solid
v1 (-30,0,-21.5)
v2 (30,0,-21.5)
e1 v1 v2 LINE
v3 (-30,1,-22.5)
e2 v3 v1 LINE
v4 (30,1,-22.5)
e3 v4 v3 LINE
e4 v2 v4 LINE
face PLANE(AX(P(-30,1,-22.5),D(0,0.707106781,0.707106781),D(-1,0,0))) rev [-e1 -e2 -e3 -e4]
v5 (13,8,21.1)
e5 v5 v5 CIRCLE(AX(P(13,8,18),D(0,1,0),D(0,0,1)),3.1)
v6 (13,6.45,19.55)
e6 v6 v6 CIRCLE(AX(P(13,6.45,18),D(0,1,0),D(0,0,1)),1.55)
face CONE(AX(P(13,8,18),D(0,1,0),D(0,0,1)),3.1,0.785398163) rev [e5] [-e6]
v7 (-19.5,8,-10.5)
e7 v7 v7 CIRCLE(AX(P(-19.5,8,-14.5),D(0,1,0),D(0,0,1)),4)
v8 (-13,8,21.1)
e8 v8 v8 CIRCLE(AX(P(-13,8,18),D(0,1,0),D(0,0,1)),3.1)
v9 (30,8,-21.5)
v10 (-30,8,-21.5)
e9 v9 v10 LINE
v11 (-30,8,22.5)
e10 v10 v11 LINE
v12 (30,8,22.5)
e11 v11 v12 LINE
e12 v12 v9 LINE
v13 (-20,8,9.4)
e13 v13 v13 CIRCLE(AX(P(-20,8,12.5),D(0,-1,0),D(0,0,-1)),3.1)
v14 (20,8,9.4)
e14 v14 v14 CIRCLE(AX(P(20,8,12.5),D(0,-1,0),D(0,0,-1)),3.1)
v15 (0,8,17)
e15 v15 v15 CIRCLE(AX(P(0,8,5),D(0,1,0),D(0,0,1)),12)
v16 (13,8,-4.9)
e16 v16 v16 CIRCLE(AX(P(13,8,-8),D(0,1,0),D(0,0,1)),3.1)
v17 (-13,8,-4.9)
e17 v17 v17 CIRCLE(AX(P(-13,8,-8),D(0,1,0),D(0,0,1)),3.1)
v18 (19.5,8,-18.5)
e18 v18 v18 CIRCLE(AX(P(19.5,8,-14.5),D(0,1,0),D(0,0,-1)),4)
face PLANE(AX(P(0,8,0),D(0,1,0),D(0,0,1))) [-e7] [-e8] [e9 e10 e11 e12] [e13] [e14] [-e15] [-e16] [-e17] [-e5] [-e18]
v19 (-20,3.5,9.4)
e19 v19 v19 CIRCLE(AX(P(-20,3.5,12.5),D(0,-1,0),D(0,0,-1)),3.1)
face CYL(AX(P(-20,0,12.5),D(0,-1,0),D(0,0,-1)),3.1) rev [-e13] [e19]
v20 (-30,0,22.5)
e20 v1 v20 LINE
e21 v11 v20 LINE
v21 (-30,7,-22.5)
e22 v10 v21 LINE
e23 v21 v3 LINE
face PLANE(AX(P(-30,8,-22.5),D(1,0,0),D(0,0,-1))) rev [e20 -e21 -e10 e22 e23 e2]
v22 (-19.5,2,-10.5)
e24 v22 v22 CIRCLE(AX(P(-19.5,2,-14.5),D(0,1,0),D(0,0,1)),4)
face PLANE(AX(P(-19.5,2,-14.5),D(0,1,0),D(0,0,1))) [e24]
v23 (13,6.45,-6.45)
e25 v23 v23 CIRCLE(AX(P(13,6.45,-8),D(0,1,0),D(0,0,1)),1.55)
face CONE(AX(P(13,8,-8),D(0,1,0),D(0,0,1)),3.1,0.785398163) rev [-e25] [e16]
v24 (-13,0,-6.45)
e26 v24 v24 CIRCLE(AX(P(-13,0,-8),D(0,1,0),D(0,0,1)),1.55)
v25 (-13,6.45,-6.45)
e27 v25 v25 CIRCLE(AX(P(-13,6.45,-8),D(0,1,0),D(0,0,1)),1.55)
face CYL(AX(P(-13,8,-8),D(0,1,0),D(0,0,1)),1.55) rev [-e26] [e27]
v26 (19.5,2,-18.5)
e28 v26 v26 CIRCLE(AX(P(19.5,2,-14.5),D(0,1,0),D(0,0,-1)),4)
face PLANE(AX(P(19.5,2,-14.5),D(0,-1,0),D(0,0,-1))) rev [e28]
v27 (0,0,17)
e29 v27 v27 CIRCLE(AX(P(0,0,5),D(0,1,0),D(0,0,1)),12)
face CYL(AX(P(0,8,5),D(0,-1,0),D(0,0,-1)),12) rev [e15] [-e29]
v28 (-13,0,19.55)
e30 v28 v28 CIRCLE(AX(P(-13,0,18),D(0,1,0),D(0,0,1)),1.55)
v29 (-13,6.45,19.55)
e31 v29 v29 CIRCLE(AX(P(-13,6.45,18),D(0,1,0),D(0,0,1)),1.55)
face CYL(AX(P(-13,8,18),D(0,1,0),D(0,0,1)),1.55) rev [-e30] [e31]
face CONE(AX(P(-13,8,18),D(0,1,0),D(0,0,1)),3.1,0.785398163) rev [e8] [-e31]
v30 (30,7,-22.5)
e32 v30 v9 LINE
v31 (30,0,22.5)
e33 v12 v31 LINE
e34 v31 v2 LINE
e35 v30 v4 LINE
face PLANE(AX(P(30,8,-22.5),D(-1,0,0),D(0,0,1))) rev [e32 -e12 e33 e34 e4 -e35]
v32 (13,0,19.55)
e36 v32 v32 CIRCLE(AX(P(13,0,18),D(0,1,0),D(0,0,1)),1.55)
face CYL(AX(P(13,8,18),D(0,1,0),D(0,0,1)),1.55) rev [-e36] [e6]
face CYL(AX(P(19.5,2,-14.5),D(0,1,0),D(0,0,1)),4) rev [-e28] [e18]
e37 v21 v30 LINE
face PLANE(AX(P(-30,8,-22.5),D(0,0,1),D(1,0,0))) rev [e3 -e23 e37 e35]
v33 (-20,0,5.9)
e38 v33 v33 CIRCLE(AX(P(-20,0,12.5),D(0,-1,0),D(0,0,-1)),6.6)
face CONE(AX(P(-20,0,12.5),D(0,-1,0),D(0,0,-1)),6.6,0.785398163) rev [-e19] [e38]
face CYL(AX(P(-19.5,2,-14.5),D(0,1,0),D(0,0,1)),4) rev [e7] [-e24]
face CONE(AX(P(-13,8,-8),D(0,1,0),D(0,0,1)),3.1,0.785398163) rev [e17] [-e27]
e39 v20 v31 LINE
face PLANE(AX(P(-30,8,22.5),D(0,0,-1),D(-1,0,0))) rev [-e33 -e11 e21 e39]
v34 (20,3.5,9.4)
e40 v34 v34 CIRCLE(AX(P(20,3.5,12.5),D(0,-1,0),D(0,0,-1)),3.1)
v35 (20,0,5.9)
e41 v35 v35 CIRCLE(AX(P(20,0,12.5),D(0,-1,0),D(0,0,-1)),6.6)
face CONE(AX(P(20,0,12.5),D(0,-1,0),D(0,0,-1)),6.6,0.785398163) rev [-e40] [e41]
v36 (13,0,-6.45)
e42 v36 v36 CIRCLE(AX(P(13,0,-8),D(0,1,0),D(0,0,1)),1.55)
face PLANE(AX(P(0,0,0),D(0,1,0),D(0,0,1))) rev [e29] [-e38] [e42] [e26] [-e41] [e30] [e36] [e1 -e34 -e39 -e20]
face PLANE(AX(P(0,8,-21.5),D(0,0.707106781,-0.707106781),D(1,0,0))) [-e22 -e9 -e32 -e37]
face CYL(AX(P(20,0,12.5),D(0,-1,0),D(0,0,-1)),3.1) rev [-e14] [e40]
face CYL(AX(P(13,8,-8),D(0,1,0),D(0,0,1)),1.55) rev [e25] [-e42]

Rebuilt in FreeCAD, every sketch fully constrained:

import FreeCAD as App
import Part
import Sketcher

V = App.Vector
Q = App.Units.Quantity


def edges_at(feature, points):
    """Names of the edges that pass closest to the given points."""
    edges = feature.Shape.Edges
    near = lambda p: min(range(len(edges)), key=lambda i: edges[i].distToShape(Part.Vertex(*p))[0])
    return sorted({f"Edge{near(p) + 1}" for p in points})

doc = App.newDocument("Part")
body = doc.addObject("PartDesign::Body", "Body")

# Sketch on XZ plane
sketch1 = body.newObject("Sketcher::SketchObject", "Sketch")
sketch1.AttachmentSupport = (doc.getObject("XZ_Plane"), [""])
sketch1.MapMode = "FlatFace"
sketch1.addGeometry(Part.LineSegment(V(-30, -22.5, 0), V(-30, 22.5, 0)), False)
sketch1.addGeometry(Part.LineSegment(V(-30, 22.5, 0), V(30, 22.5, 0)), False)
sketch1.addGeometry(Part.LineSegment(V(30, 22.5, 0), V(30, -22.5, 0)), False)
sketch1.addGeometry(Part.LineSegment(V(30, -22.5, 0), V(-30, -22.5, 0)), False)
sketch1.addGeometry(Part.Circle(V(-20, 12.5, 0), V(0, 0, 1), 2.5), False)
sketch1.addGeometry(Part.Circle(V(20, 12.5, 0), V(0, 0, 1), 2.5), False)
sketch1.addGeometry(Part.Circle(V(0, 5, 0), V(0, 0, 1), 12), False)
sketch1.addConstraint(Sketcher.Constraint("Coincident", 0, 2, 1, 1))
sketch1.addConstraint(Sketcher.Constraint("Coincident", 1, 2, 2, 1))
sketch1.addConstraint(Sketcher.Constraint("Coincident", 2, 2, 3, 1))
sketch1.addConstraint(Sketcher.Constraint("Coincident", 3, 2, 0, 1))
sketch1.addConstraint(Sketcher.Constraint("Vertical", 0))
sketch1.addConstraint(Sketcher.Constraint("Horizontal", 1))
sketch1.addConstraint(Sketcher.Constraint("Vertical", 2))
sketch1.addConstraint(Sketcher.Constraint("Horizontal", 3))
sketch1.addConstraint(Sketcher.Constraint("Equal", 4, 5))
sketch1.addConstraint(Sketcher.Constraint("Symmetric", 0, 2, 2, 2, -1, 1))
sketch1.addConstraint(Sketcher.Constraint("Symmetric", 4, 3, 5, 3, -2))
sketch1.addConstraint(Sketcher.Constraint("PointOnObject", 6, 3, -2))
sketch1.addConstraint(Sketcher.Constraint("Diameter", 4, Q("5 mm")))
sketch1.addConstraint(Sketcher.Constraint("Diameter", 6, Q("24 mm")))
sketch1.addConstraint(Sketcher.Constraint("DistanceX", 1, 1, 1, 2, Q("60 mm")))
sketch1.addConstraint(Sketcher.Constraint("DistanceY", 0, 1, 0, 2, Q("45 mm")))
sketch1.addConstraint(Sketcher.Constraint("DistanceX", 4, 3, -1, 1, Q("20 mm")))
sketch1.addConstraint(Sketcher.Constraint("DistanceY", -1, 1, 6, 3, Q("5 mm")))
sketch1.addConstraint(Sketcher.Constraint("DistanceY", 4, 3, 0, 2, Q("10 mm")))
pad1 = body.newObject("PartDesign::Pad", "Pad")
pad1.Profile = sketch1
pad1.Length = 8
pad1.Reversed = True
doc.recompute()

chamfer = body.newObject("PartDesign::Chamfer", "Chamfer")
chamfer.Base = (pad1, edges_at(pad1, [(0, 8, -22.5), (0, 0, -22.5)]))
chamfer.Size = 1

# Sketch on XZ plane
sketch2 = body.newObject("Sketcher::SketchObject", "Sketch001")
sketch2.AttachmentSupport = (doc.getObject("XZ_Plane"), [""])
sketch2.MapMode = "FlatFace"
sketch2.AttachmentOffset = App.Placement(V(0, 0, -8), App.Rotation())
sketch2.addGeometry(Part.Circle(V(-19.5, -14.5, 0), V(0, 0, 1), 4), False)
sketch2.addGeometry(Part.Circle(V(19.5, -14.5, 0), V(0, 0, 1), 4), False)
sketch2.addConstraint(Sketcher.Constraint("Equal", 0, 1))
sketch2.addConstraint(Sketcher.Constraint("Symmetric", 0, 3, 1, 3, -2))
sketch2.addConstraint(Sketcher.Constraint("Diameter", 0, Q("8 mm")))
sketch2.addConstraint(Sketcher.Constraint("DistanceX", 0, 3, 1, 3, Q("39 mm")))
sketch2.addConstraint(Sketcher.Constraint("DistanceY", 0, 3, -1, 1, Q("14.5 mm")))
pocket1 = body.newObject("PartDesign::Pocket", "Pocket")
pocket1.Profile = sketch2
pocket1.Length = 6
pocket1.Reversed = True

# Sketch on XZ plane
sketch3 = body.newObject("Sketcher::SketchObject", "Sketch002")
sketch3.AttachmentSupport = (doc.getObject("XZ_Plane"), [""])
sketch3.MapMode = "FlatFace"
sketch3.addGeometry(Part.Circle(V(-13, 18, 0), V(0, 0, 1), 1.2), False)
sketch3.addGeometry(Part.Circle(V(13, 18, 0), V(0, 0, 1), 1.2), False)
sketch3.addGeometry(Part.Circle(V(-13, -8, 0), V(0, 0, 1), 1.2), False)
sketch3.addGeometry(Part.Circle(V(13, -8, 0), V(0, 0, 1), 1.2), False)
sketch3.addConstraint(Sketcher.Constraint("Equal", 0, 1))
sketch3.addConstraint(Sketcher.Constraint("Equal", 1, 2))
sketch3.addConstraint(Sketcher.Constraint("Equal", 2, 3))
sketch3.addConstraint(Sketcher.Constraint("Symmetric", 0, 3, 1, 3, -2))
sketch3.addConstraint(Sketcher.Constraint("Symmetric", 2, 3, 3, 3, -2))
sketch3.addConstraint(Sketcher.Constraint("Vertical", 0, 3, 2, 3))
sketch3.addConstraint(Sketcher.Constraint("Diameter", 0, Q("2.5 mm")))
sketch3.addConstraint(Sketcher.Constraint("DistanceX", 0, 3, -1, 1, Q("13 mm")))
sketch3.addConstraint(Sketcher.Constraint("DistanceY", -1, 1, 0, 3, Q("18 mm")))
sketch3.addConstraint(Sketcher.Constraint("DistanceY", 2, 3, -1, 1, Q("8 mm")))
pocket2 = body.newObject("PartDesign::Pocket", "Pocket001")
pocket2.Profile = sketch3
pocket2.Type = "ThroughAll"

# Sketch on XZ plane
sketch4 = body.newObject("Sketcher::SketchObject", "Sketch003")
sketch4.AttachmentSupport = (doc.getObject("XZ_Plane"), [""])
sketch4.MapMode = "FlatFace"
sketch4.addGeometry(Part.Circle(V(20, 12.5, 0), V(0, 0, 1), 3.1), False)
sketch4.addGeometry(Part.Circle(V(-20, 12.5, 0), V(0, 0, 1), 3.1), False)
sketch4.addConstraint(Sketcher.Constraint("Equal", 0, 1))
sketch4.addConstraint(Sketcher.Constraint("Symmetric", 0, 3, 1, 3, -2))
sketch4.addConstraint(Sketcher.Constraint("Diameter", 0, Q("6.2 mm")))
sketch4.addConstraint(Sketcher.Constraint("DistanceX", -1, 1, 0, 3, Q("20 mm")))
sketch4.addConstraint(Sketcher.Constraint("DistanceY", -1, 1, 0, 3, Q("12.5 mm")))
doc.recompute()
hole = body.newObject("PartDesign::Hole", "Hole")
hole.Profile = sketch4
hole.ThreadType = "None"
hole.Diameter = 6.2
hole.DepthType = "ThroughAll"
hole.HoleCutType = "Countersink"
hole.HoleCutDiameter = 13.2
hole.HoleCutCountersinkAngle = 90

# Sketch on XZ plane
sketch5 = body.newObject("Sketcher::SketchObject", "Sketch004")
sketch5.AttachmentSupport = (doc.getObject("XZ_Plane"), [""])
sketch5.MapMode = "FlatFace"
sketch5.AttachmentOffset = App.Placement(V(0, 0, -8), App.Rotation())
sketch5.addGeometry(Part.Circle(V(-13, -8, 0), V(0, 0, 1), 1.6), False)
sketch5.addGeometry(Part.Circle(V(-13, 18, 0), V(0, 0, 1), 1.6), False)
sketch5.addGeometry(Part.Circle(V(13, 18, 0), V(0, 0, 1), 1.6), False)
sketch5.addGeometry(Part.Circle(V(13, -8, 0), V(0, 0, 1), 1.6), False)
sketch5.addConstraint(Sketcher.Constraint("Equal", 0, 1))
sketch5.addConstraint(Sketcher.Constraint("Equal", 1, 2))
sketch5.addConstraint(Sketcher.Constraint("Equal", 2, 3))
sketch5.addConstraint(Sketcher.Constraint("Symmetric", 1, 3, 2, 3, -2))
sketch5.addConstraint(Sketcher.Constraint("Symmetric", 0, 3, 3, 3, -2))
sketch5.addConstraint(Sketcher.Constraint("Vertical", 0, 3, 1, 3))
sketch5.addConstraint(Sketcher.Constraint("Diameter", 0, Q("3.1 mm")))
sketch5.addConstraint(Sketcher.Constraint("DistanceX", 0, 3, -1, 1, Q("13 mm")))
sketch5.addConstraint(Sketcher.Constraint("DistanceY", 0, 3, -1, 1, Q("8 mm")))
sketch5.addConstraint(Sketcher.Constraint("DistanceY", -1, 1, 1, 3, Q("18 mm")))
doc.recompute()
hole2 = body.newObject("PartDesign::Hole", "Hole001")
hole2.Profile = sketch5
hole2.ThreadType = "None"
hole2.Diameter = 3.1
hole2.DepthType = "ThroughAll"
hole2.HoleCutType = "Countersink"
hole2.HoleCutDiameter = 6.2
hole2.HoleCutCountersinkAngle = 90
hole2.Reversed = True

doc.recompute()
